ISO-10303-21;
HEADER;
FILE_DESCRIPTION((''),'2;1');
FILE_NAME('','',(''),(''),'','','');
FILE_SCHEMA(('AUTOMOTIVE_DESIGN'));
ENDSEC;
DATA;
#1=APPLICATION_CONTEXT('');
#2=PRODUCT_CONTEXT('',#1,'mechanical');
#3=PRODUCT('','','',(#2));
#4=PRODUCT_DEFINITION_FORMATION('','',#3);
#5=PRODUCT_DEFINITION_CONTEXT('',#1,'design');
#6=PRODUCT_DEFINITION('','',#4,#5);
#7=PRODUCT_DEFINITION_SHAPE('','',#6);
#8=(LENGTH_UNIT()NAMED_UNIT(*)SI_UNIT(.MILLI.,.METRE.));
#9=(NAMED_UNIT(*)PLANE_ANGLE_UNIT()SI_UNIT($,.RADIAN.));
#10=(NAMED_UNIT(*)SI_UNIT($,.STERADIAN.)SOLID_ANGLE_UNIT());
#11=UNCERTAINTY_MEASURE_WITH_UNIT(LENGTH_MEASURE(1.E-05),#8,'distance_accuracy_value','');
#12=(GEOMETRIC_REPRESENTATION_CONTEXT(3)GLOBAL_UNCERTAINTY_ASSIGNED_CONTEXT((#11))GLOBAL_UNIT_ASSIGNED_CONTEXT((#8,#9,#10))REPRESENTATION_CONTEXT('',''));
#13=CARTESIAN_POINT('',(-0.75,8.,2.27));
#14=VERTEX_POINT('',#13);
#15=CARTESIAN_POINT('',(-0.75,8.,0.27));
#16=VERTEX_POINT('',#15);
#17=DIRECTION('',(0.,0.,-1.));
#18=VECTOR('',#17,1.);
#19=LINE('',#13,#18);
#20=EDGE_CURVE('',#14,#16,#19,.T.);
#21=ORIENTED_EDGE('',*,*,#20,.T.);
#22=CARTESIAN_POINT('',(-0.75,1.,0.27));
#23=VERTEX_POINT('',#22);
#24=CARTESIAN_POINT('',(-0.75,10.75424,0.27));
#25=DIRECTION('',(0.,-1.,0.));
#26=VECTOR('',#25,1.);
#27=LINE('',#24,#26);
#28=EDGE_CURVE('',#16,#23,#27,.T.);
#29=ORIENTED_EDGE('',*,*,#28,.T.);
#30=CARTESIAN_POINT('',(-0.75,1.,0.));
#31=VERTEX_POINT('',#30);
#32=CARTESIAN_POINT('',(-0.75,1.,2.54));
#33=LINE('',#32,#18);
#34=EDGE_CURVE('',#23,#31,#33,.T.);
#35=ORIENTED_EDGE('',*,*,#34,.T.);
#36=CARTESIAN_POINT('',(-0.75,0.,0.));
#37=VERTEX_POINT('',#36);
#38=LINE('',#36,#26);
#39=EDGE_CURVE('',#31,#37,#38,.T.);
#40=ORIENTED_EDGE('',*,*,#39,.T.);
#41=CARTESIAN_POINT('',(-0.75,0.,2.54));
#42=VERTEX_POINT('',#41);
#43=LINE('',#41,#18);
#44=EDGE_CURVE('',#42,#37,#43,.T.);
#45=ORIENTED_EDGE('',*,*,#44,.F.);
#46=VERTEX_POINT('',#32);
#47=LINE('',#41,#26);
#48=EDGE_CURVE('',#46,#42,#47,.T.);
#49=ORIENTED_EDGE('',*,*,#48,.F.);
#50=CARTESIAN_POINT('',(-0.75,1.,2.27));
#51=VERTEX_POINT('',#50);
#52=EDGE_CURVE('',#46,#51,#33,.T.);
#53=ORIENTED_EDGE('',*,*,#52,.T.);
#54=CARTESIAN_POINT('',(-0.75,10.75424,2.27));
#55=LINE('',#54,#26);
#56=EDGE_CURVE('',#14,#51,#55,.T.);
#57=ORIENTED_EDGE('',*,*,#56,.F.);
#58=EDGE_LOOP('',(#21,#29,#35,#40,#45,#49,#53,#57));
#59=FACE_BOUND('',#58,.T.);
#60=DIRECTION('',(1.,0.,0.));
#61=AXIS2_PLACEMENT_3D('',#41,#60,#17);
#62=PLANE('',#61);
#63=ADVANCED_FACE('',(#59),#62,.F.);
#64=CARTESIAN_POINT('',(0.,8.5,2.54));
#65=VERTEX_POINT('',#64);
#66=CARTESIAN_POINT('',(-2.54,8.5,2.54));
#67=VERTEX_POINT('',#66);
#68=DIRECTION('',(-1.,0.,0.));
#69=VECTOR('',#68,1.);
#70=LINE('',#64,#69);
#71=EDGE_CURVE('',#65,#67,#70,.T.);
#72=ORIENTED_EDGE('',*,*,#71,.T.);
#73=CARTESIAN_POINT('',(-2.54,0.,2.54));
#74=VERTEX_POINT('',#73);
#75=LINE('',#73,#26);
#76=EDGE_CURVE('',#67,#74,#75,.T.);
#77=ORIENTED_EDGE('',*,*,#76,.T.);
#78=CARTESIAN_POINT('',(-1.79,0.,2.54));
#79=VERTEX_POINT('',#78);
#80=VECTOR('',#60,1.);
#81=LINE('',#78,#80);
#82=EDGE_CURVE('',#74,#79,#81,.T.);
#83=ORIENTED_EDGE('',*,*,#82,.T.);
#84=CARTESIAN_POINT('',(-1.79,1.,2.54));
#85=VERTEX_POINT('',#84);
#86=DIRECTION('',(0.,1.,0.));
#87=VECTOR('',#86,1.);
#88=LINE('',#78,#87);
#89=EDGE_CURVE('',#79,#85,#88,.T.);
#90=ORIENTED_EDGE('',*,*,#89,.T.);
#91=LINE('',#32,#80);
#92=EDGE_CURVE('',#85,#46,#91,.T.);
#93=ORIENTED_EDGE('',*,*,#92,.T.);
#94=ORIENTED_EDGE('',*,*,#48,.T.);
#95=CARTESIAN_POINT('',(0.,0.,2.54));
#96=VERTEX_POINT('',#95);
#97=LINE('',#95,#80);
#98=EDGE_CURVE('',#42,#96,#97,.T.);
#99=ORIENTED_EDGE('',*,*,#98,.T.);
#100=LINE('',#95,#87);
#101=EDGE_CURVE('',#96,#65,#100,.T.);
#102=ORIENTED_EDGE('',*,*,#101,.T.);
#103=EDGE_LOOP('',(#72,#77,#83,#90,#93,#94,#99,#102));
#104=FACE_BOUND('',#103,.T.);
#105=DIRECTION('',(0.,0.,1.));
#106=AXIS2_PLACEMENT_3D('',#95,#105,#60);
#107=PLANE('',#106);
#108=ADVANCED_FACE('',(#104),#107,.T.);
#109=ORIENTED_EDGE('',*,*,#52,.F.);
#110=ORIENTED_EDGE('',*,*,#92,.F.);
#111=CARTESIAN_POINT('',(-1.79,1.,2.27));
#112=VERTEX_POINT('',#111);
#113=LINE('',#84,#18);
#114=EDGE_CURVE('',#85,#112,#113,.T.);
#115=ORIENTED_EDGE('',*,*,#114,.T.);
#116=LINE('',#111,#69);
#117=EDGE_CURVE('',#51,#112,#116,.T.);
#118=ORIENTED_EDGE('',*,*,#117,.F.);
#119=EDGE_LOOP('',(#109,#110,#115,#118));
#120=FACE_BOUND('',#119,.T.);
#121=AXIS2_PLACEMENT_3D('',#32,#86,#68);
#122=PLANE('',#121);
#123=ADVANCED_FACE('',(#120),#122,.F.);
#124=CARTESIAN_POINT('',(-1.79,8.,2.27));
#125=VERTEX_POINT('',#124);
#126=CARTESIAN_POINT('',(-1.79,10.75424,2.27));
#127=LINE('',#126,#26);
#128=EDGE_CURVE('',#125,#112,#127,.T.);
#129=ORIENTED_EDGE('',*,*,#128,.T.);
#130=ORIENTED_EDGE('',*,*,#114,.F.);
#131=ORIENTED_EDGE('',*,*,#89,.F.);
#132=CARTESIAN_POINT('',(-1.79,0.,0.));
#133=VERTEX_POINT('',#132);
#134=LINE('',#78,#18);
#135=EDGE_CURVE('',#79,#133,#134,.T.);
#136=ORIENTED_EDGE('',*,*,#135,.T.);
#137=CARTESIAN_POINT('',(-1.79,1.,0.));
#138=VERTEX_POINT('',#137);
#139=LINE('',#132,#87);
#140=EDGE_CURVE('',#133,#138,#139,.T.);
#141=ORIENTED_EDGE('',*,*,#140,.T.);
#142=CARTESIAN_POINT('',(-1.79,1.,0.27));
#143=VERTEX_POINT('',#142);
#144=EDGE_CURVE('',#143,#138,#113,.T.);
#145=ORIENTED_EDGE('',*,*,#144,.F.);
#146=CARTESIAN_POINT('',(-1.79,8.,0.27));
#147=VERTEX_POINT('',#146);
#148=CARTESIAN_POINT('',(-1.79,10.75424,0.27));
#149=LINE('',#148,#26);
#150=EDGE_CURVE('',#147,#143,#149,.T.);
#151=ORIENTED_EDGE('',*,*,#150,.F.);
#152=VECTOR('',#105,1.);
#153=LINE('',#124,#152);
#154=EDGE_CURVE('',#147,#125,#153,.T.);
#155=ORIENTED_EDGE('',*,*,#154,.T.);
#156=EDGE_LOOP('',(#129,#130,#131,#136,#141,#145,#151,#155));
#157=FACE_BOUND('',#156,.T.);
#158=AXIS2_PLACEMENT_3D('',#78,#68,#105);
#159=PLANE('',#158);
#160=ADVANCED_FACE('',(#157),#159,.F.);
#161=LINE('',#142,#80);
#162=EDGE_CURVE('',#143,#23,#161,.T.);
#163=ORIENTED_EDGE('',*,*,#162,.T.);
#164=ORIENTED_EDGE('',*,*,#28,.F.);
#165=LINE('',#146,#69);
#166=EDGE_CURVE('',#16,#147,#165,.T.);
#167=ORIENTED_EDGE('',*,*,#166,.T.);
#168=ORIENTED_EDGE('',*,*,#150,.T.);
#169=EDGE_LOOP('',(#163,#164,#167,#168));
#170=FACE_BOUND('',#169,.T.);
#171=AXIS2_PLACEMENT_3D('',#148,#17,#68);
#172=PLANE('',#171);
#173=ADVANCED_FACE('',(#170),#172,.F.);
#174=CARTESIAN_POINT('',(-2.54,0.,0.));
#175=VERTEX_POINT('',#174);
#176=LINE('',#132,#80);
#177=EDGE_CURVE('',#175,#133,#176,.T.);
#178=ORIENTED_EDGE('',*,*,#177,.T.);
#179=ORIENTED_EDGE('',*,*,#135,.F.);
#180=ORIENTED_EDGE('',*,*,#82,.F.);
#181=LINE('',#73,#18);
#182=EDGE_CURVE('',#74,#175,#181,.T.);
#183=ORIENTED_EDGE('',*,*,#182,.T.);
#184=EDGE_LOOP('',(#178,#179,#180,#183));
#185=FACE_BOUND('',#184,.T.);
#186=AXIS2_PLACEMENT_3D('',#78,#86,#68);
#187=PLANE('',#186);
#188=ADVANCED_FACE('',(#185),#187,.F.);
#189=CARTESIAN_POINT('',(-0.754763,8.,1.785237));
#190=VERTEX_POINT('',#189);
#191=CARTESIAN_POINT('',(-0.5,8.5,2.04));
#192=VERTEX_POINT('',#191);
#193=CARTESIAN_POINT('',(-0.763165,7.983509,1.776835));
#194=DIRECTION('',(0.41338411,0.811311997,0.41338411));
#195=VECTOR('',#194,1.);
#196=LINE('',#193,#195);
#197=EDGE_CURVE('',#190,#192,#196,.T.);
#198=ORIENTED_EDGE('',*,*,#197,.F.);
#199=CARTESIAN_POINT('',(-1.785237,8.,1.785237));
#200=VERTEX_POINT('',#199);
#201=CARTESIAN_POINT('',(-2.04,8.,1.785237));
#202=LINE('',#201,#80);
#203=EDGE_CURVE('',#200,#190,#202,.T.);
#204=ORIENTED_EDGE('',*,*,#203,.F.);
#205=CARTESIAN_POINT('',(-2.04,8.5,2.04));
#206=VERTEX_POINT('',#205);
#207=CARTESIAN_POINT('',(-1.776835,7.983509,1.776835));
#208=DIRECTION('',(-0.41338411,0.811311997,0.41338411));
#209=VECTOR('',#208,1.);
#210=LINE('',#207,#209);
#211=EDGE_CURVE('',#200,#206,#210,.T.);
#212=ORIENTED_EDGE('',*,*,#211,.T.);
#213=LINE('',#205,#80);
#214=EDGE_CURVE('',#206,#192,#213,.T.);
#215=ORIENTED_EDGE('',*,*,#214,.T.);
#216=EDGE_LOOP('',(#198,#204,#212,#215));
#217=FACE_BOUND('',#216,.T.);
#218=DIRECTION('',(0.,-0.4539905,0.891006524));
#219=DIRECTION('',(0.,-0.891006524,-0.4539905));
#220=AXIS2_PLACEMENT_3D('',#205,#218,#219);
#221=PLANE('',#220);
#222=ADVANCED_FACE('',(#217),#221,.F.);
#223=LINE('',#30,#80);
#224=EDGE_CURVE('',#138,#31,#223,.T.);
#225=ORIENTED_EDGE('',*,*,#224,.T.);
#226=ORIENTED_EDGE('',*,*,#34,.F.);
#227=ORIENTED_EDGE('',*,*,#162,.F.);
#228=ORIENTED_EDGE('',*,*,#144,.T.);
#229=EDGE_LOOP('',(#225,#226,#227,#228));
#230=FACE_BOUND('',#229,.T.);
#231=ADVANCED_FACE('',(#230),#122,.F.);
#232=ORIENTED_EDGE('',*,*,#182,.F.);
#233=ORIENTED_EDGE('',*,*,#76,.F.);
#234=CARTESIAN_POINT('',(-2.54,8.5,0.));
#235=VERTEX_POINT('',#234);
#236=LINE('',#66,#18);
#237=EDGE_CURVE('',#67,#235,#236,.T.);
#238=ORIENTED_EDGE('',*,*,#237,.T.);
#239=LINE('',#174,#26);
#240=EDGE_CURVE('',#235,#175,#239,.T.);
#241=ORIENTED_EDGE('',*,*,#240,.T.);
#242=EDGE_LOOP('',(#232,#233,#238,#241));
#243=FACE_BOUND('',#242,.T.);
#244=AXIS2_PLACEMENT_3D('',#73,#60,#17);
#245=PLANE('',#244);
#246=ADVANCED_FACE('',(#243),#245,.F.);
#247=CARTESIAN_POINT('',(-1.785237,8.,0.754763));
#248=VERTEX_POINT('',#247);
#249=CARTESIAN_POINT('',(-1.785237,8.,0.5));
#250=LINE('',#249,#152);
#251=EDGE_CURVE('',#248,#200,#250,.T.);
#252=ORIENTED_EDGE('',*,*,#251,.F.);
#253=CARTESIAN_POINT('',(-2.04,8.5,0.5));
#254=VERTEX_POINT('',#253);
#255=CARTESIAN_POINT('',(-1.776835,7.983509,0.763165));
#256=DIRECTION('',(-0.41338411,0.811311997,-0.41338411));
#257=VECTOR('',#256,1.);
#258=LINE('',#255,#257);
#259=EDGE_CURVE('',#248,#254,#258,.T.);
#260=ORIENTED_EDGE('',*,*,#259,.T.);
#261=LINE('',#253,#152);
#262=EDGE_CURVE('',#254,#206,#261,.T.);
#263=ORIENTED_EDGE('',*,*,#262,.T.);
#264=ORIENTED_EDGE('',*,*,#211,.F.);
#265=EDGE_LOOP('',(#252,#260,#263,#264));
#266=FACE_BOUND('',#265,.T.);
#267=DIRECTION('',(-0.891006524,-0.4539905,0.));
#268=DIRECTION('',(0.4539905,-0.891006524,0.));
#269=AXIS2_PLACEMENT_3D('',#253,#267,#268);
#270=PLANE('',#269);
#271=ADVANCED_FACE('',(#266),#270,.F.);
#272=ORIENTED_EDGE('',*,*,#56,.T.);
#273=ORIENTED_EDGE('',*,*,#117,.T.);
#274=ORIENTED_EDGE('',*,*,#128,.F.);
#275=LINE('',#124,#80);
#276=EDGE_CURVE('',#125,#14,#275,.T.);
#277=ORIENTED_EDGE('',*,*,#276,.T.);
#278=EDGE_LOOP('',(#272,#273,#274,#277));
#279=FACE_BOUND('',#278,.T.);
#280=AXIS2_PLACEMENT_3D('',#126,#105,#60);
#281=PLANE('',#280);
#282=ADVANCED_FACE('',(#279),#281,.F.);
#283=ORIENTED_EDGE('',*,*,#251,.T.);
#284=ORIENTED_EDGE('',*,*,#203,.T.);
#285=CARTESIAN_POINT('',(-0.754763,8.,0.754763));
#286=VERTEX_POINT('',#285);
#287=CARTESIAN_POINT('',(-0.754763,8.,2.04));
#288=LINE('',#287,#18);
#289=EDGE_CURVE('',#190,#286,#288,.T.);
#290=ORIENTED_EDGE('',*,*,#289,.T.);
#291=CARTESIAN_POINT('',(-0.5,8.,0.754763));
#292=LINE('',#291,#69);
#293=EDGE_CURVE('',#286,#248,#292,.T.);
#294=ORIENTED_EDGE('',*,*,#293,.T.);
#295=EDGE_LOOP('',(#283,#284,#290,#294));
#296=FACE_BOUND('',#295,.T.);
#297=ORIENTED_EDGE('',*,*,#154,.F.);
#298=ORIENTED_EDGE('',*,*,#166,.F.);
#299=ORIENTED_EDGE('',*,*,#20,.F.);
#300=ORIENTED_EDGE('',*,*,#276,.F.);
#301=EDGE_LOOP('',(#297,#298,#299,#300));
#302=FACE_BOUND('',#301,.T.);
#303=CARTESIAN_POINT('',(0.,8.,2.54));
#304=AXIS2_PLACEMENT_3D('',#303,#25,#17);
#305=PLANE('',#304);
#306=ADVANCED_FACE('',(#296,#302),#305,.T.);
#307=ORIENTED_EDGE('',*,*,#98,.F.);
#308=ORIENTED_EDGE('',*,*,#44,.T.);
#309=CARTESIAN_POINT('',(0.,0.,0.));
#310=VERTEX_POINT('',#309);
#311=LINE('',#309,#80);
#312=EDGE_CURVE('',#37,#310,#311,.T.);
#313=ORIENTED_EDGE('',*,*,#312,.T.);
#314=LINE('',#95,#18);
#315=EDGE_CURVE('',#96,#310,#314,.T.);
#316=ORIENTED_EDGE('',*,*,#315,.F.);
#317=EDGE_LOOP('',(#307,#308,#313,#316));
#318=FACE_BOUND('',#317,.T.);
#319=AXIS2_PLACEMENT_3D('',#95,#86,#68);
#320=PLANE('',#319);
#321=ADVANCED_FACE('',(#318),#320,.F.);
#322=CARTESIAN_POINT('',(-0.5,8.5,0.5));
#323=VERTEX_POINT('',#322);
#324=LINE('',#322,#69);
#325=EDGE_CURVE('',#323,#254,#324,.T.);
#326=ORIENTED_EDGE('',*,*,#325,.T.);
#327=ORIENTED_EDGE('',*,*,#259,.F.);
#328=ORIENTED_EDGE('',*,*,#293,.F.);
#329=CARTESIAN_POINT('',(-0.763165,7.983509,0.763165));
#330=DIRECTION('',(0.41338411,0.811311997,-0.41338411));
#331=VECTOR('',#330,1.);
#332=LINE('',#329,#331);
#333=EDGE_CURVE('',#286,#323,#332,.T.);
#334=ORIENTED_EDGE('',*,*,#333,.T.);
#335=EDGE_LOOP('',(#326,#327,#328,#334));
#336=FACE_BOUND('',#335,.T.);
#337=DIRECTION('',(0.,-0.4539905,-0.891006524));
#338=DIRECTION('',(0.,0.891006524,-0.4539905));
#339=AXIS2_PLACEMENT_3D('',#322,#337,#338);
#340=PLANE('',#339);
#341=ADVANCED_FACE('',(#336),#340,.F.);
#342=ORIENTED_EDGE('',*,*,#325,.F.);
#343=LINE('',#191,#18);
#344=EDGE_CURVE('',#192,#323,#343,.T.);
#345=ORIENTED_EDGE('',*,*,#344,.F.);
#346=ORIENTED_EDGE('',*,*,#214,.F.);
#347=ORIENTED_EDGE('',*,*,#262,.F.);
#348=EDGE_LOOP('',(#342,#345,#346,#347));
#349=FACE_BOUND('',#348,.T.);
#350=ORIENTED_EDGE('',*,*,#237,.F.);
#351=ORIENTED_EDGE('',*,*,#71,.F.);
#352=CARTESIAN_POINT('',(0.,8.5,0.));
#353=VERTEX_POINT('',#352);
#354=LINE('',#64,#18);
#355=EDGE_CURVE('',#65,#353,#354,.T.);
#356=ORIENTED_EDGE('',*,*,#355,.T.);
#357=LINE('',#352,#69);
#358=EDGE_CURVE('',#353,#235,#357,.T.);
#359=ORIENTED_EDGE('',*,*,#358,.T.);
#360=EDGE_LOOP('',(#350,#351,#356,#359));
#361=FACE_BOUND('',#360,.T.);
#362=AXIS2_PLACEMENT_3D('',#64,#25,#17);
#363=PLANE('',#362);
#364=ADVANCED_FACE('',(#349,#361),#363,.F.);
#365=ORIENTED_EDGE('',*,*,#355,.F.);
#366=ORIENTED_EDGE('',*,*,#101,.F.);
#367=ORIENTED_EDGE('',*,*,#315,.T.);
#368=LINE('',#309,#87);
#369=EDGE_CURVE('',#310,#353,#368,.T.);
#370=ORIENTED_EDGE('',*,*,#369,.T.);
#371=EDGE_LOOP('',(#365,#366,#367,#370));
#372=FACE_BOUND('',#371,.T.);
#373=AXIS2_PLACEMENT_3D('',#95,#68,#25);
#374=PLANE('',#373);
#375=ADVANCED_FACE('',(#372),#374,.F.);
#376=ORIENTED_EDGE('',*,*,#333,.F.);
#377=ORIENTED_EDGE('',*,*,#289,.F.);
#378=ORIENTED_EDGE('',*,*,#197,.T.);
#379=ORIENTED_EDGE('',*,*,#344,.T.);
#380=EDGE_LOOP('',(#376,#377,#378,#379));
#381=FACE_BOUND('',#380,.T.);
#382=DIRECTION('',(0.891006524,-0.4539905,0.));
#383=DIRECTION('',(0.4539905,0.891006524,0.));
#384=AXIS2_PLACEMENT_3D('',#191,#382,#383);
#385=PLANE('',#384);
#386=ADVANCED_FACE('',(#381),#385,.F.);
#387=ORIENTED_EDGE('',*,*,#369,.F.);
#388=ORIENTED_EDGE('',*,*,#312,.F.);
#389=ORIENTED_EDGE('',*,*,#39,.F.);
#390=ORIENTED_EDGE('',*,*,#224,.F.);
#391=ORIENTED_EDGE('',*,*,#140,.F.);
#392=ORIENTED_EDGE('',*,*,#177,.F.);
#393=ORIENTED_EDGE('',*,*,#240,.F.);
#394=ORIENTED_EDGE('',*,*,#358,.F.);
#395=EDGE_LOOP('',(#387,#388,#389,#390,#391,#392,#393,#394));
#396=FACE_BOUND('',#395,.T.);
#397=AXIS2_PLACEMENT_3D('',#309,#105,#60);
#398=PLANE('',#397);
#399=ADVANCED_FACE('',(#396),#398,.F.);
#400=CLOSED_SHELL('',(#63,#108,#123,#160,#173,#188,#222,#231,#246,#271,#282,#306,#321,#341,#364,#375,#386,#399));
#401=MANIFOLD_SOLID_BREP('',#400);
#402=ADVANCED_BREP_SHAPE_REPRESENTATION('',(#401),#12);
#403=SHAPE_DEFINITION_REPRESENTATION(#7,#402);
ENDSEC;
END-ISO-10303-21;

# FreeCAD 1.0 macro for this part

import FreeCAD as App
import Part
import Sketcher

V = App.Vector

doc = App.newDocument("Part")
params = doc.addObject("Spreadsheet::Sheet", "Params")
for row, (alias, value) in enumerate([
    ("sketch1_height", "1 mm"),
    ("sketch1_height2", "8.5 mm"),
    ("sketch1_width", "0.75 mm"),
    ("sketch1_width2", "1.04 mm"),
    ("pad1_length", "2.54 mm"),
    ("sketch2_height", "2 mm"),
    ("sketch2_width", "1.04 mm"),
    ("pocket1_length", "7 mm"),
    ("sketch3_width", "1.54 mm"),
    ("pocket2_length", "0.5 mm"),
    ("pocket2_taper", "-27 deg"),
], start=1):
    params.set(f"A{row}", alias)
    params.set(f"B{row}", "=" + value)
    params.setAlias(f"B{row}", alias)

body = doc.addObject("PartDesign::Body", "Body")

# Sketch on XY plane
sketch1 = body.newObject("Sketcher::SketchObject", "Sketch")
sketch1.AttachmentSupport = (doc.getObject("XY_Plane"), [""])
sketch1.MapMode = "FlatFace"
sketch1.addGeometry(Part.LineSegment(V(-2.5, 0, 0), V(-1.8, 0, 0)), False)
sketch1.addGeometry(Part.LineSegment(V(-1.8, 0, 0), V(-1.8, 1, 0)), False)
sketch1.addGeometry(Part.LineSegment(V(-1.8, 1, 0), V(-0.8, 1, 0)), False)
sketch1.addGeometry(Part.LineSegment(V(-0.8, 1, 0), V(-0.8, 0, 0)), False)
sketch1.addGeometry(Part.LineSegment(V(-0.8, 0, 0), V(0, 0, 0)), False)
sketch1.addGeometry(Part.LineSegment(V(0, 0, 0), V(0, 8.5, 0)), False)
sketch1.addGeometry(Part.LineSegment(V(0, 8.5, 0), V(-2.5, 8.5, 0)), False)
sketch1.addGeometry(Part.LineSegment(V(-2.5, 8.5, 0), V(-2.5, 0, 0)), False)
sketch1.addConstraint(Sketcher.Constraint("Coincident", 0, 2, 1, 1))
sketch1.addConstraint(Sketcher.Constraint("Coincident", 1, 2, 2, 1))
sketch1.addConstraint(Sketcher.Constraint("Coincident", 2, 2, 3, 1))
sketch1.addConstraint(Sketcher.Constraint("Coincident", 3, 2, 4, 1))
sketch1.addConstraint(Sketcher.Constraint("Coincident", 4, 2, 5, 1))
sketch1.addConstraint(Sketcher.Constraint("Coincident", 5, 2, 6, 1))
sketch1.addConstraint(Sketcher.Constraint("Coincident", 6, 2, 7, 1))
sketch1.addConstraint(Sketcher.Constraint("Coincident", 7, 2, 0, 1))
sketch1.addConstraint(Sketcher.Constraint("Horizontal", 0))
sketch1.addConstraint(Sketcher.Constraint("Vertical", 1))
sketch1.addConstraint(Sketcher.Constraint("Horizontal", 2))
sketch1.addConstraint(Sketcher.Constraint("Vertical", 3))
sketch1.addConstraint(Sketcher.Constraint("Horizontal", 4))
sketch1.addConstraint(Sketcher.Constraint("Vertical", 5))
sketch1.addConstraint(Sketcher.Constraint("Horizontal", 6))
sketch1.addConstraint(Sketcher.Constraint("Vertical", 7))
sketch1.addConstraint(Sketcher.Constraint("Coincident", 4, 2, -1, 1))
sketch1.addConstraint(Sketcher.Constraint("PointOnObject", 0, 2, -1))
sketch1.addConstraint(Sketcher.Constraint("Equal", 0, 4))
sketch1.addConstraint(Sketcher.Constraint("DistanceY", 1, 1, 1, 2, 1.0))
sketch1.addConstraint(Sketcher.Constraint("DistanceY", 5, 1, 5, 2, 8.5))
sketch1.addConstraint(Sketcher.Constraint("DistanceX", 0, 1, 0, 2, 0.75))
sketch1.addConstraint(Sketcher.Constraint("DistanceX", 2, 1, 2, 2, 1.04))
sketch1.setExpression("Constraints[19]", "Params.sketch1_height")
sketch1.setExpression("Constraints[20]", "Params.sketch1_height2")
sketch1.setExpression("Constraints[21]", "Params.sketch1_width")
sketch1.setExpression("Constraints[22]", "Params.sketch1_width2")
pad1 = body.newObject("PartDesign::Pad", "Pad")
pad1.Profile = sketch1
pad1.setExpression("Length", "Params.pad1_length")

# Sketch on XZ plane
sketch2 = body.newObject("Sketcher::SketchObject", "Sketch001")
sketch2.AttachmentSupport = (doc.getObject("XZ_Plane"), [""])
sketch2.MapMode = "FlatFace"
sketch2.AttachmentOffset = App.Placement(V(0, 0, -1), App.Rotation())
sketch2.addGeometry(Part.LineSegment(V(-1.8, 2.3, 0), V(-1.8, 0.3, 0)), False)
sketch2.addGeometry(Part.LineSegment(V(-1.8, 0.3, 0), V(-0.8, 0.3, 0)), False)
sketch2.addGeometry(Part.LineSegment(V(-0.8, 0.3, 0), V(-0.8, 2.3, 0)), False)
sketch2.addGeometry(Part.LineSegment(V(-0.8, 2.3, 0), V(-1.8, 2.3, 0)), False)
sketch2.addConstraint(Sketcher.Constraint("Coincident", 0, 2, 1, 1))
sketch2.addConstraint(Sketcher.Constraint("Coincident", 1, 2, 2, 1))
sketch2.addConstraint(Sketcher.Constraint("Coincident", 2, 2, 3, 1))
sketch2.addConstraint(Sketcher.Constraint("Coincident", 3, 2, 0, 1))
sketch2.addConstraint(Sketcher.Constraint("Vertical", 0))
sketch2.addConstraint(Sketcher.Constraint("Horizontal", 1))
sketch2.addConstraint(Sketcher.Constraint("Vertical", 2))
sketch2.addConstraint(Sketcher.Constraint("Horizontal", 3))
sketch2.addConstraint(Sketcher.Constraint("DistanceY", 0, 2, 0, 1, 2.0))
sketch2.addConstraint(Sketcher.Constraint("DistanceX", 1, 1, 1, 2, 1.04))
sketch2.addConstraint(Sketcher.Constraint("DistanceX", 0, 2, -1, 1, 1.79))
sketch2.addConstraint(Sketcher.Constraint("DistanceY", -1, 1, 0, 2, 0.27))
sketch2.setExpression("Constraints[8]", "Params.sketch2_height")
sketch2.setExpression("Constraints[9]", "Params.sketch2_width")
pocket1 = body.newObject("PartDesign::Pocket", "Pocket")
pocket1.Profile = sketch2
pocket1.setExpression("Length", "Params.pocket1_length")

# Sketch on XZ plane
sketch3 = body.newObject("Sketcher::SketchObject", "Sketch002")
sketch3.AttachmentSupport = (doc.getObject("XZ_Plane"), [""])
sketch3.MapMode = "FlatFace"
sketch3.AttachmentOffset = App.Placement(V(0, 0, -8.5), App.Rotation())
sketch3.addGeometry(Part.LineSegment(V(-2, 0.5, 0), V(-2, 2, 0)), False)
sketch3.addGeometry(Part.LineSegment(V(-2, 2, 0), V(-0.5, 2, 0)), False)
sketch3.addGeometry(Part.LineSegment(V(-0.5, 2, 0), V(-0.5, 0.5, 0)), False)
sketch3.addGeometry(Part.LineSegment(V(-0.5, 0.5, 0), V(-2, 0.5, 0)), False)
sketch3.addConstraint(Sketcher.Constraint("Coincident", 0, 2, 1, 1))
sketch3.addConstraint(Sketcher.Constraint("Coincident", 1, 2, 2, 1))
sketch3.addConstraint(Sketcher.Constraint("Coincident", 2, 2, 3, 1))
sketch3.addConstraint(Sketcher.Constraint("Coincident", 3, 2, 0, 1))
sketch3.addConstraint(Sketcher.Constraint("Vertical", 0))
sketch3.addConstraint(Sketcher.Constraint("Horizontal", 1))
sketch3.addConstraint(Sketcher.Constraint("Vertical", 2))
sketch3.addConstraint(Sketcher.Constraint("Horizontal", 3))
sketch3.addConstraint(Sketcher.Constraint("Equal", 3, 0))
sketch3.addConstraint(Sketcher.Constraint("DistanceX", 1, 1, 1, 2, 1.54))
sketch3.addConstraint(Sketcher.Constraint("DistanceX", 1, 2, -1, 1, 0.5))
sketch3.addConstraint(Sketcher.Constraint("DistanceY", -1, 1, 2, 2, 0.5))
sketch3.setExpression("Constraints[9]", "Params.sketch3_width")
pocket2 = body.newObject("PartDesign::Pocket", "Pocket001")
pocket2.Profile = sketch3
pocket2.setExpression("Length", "Params.pocket2_length")
pocket2.Reversed = True
pocket2.setExpression("TaperAngle", "Params.pocket2_taper")

doc.recompute()
